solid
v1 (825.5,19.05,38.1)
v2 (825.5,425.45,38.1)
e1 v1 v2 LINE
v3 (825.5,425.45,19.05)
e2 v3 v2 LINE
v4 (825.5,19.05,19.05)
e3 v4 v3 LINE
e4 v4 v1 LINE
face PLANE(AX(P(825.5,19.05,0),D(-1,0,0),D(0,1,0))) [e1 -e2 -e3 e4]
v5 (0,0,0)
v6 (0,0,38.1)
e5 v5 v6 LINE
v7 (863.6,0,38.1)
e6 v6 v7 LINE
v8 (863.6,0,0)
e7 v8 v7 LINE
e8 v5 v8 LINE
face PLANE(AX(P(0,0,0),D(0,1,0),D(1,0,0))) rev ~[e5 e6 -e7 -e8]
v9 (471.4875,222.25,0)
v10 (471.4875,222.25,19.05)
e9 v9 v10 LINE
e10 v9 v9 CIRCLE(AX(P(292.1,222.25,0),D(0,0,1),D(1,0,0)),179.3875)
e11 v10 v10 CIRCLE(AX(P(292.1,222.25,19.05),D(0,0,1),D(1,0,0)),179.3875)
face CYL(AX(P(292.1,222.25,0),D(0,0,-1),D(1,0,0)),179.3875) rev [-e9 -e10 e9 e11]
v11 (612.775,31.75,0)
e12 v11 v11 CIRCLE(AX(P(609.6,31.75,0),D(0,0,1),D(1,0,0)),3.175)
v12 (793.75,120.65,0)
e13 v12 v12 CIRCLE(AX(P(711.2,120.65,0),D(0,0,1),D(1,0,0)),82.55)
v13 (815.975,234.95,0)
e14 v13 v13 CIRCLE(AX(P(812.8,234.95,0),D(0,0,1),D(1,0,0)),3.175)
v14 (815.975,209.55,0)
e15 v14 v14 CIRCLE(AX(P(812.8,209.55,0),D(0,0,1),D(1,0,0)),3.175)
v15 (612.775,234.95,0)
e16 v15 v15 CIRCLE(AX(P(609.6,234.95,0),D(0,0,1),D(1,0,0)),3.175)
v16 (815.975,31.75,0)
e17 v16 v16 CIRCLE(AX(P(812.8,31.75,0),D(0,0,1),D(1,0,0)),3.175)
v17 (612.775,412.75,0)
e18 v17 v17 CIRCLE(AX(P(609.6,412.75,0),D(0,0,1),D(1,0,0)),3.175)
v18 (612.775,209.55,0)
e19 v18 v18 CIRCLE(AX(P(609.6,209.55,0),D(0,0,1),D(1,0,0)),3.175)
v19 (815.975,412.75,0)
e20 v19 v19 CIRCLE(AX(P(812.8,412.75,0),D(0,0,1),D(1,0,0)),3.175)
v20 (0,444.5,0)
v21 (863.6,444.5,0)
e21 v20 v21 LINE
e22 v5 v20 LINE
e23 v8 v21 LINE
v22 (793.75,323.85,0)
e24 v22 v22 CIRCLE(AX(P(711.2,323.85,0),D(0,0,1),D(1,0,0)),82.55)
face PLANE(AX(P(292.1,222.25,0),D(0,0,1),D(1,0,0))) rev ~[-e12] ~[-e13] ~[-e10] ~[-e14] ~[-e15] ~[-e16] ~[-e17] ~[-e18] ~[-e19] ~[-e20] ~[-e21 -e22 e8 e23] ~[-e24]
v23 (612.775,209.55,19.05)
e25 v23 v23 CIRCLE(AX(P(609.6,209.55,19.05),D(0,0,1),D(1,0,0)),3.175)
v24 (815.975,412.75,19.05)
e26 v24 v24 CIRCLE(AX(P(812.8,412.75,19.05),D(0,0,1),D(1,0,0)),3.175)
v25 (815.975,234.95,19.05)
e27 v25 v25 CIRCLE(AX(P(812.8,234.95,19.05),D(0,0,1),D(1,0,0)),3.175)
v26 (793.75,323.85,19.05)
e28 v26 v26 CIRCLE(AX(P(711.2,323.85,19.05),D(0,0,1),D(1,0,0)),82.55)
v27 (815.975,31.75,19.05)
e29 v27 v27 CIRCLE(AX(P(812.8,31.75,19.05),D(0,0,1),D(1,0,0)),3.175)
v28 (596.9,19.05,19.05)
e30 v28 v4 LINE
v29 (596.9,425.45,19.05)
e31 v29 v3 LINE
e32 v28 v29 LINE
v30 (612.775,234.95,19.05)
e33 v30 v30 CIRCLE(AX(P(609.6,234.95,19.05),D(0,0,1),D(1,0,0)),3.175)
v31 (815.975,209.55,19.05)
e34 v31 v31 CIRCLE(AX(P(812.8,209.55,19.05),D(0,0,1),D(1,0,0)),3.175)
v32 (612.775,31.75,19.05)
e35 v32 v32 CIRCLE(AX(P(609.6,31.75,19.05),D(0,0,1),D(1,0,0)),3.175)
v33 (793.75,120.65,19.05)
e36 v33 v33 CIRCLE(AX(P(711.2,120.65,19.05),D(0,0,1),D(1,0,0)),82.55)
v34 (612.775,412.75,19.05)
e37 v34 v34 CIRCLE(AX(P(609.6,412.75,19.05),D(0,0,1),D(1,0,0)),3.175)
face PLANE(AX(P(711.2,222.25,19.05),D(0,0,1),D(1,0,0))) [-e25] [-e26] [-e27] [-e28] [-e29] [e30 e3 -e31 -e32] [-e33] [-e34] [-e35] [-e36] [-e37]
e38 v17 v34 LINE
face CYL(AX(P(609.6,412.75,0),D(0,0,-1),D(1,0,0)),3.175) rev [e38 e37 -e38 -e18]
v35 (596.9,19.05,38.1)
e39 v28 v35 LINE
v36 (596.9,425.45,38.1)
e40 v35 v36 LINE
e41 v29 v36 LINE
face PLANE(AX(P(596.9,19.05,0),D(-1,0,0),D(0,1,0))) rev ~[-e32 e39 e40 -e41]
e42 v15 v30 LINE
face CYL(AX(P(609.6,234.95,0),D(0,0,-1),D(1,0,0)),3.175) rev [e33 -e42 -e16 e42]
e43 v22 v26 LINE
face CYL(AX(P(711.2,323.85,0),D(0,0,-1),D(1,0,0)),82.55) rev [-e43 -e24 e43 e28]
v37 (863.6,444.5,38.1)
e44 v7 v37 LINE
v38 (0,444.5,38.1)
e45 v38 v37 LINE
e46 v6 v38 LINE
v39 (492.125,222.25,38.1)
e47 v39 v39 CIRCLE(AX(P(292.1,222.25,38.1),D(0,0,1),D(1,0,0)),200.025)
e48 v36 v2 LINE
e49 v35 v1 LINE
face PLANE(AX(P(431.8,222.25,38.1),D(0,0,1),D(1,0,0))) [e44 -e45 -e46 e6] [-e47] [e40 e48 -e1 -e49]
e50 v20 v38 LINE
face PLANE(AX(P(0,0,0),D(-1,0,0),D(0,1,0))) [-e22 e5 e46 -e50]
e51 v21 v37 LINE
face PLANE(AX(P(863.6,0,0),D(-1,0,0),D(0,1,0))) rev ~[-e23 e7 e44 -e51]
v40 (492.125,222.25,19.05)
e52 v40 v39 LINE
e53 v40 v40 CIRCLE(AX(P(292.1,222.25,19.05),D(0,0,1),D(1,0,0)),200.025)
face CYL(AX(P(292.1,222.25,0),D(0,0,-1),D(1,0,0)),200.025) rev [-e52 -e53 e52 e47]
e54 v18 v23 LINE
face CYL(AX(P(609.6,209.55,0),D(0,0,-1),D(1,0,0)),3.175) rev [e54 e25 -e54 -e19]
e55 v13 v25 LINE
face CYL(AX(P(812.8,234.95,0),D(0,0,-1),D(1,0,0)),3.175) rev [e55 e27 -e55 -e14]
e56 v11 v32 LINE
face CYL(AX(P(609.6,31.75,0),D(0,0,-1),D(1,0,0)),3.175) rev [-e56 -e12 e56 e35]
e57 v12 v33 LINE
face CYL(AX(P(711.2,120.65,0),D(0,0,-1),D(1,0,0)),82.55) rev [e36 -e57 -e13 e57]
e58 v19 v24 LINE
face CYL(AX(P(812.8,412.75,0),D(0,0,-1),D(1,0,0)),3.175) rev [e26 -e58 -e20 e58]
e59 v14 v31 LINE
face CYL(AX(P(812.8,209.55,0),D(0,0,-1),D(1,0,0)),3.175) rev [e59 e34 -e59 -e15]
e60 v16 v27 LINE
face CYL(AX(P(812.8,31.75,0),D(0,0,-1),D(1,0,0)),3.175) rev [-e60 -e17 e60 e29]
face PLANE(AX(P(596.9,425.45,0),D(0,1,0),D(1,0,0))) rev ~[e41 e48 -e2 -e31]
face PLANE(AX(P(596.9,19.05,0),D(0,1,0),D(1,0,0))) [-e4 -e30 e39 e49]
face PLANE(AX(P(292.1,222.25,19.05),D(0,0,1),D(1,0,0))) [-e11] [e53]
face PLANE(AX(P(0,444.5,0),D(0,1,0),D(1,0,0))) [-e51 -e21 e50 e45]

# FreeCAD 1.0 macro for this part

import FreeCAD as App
import Part
import Sketcher

V = App.Vector
Q = App.Units.Quantity

doc = App.newDocument("Part")
body = doc.addObject("PartDesign::Body", "Body")

# Sketch on XY plane
sketch1 = body.newObject("Sketcher::SketchObject", "Sketch")
sketch1.AttachmentSupport = (doc.getObject("XY_Plane"), [""])
sketch1.MapMode = "FlatFace"
sketch1.addGeometry([
    Part.LineSegment(V(0, 444, 0), V(0, 0, 0)),  # 0
    Part.LineSegment(V(0, 0, 0), V(864, 0, 0)),  # 1
    Part.LineSegment(V(864, 0, 0), V(864, 444, 0)),  # 2
    Part.LineSegment(V(864, 444, 0), V(0, 444, 0)),  # 3
    Part.Circle(V(292, 222, 0), V(0, 0, 1), 200),  # 4
    Part.LineSegment(V(826, 19, 0), V(597, 19, 0)),  # 5
    Part.LineSegment(V(597, 19, 0), V(597, 425, 0)),  # 6
    Part.LineSegment(V(597, 425, 0), V(826, 425, 0)),  # 7
    Part.LineSegment(V(826, 425, 0), V(826, 19, 0)),  # 8
], False)
sketch1.addConstraint([
    Sketcher.Constraint("Coincident", 0, 2, 1, 1),
    Sketcher.Constraint("Coincident", 1, 2, 2, 1),
    Sketcher.Constraint("Coincident", 2, 2, 3, 1),
    Sketcher.Constraint("Coincident", 3, 2, 0, 1),
    Sketcher.Constraint("Coincident", 5, 2, 6, 1),
    Sketcher.Constraint("Coincident", 6, 2, 7, 1),
    Sketcher.Constraint("Coincident", 7, 2, 8, 1),
    Sketcher.Constraint("Coincident", 8, 2, 5, 1),
    Sketcher.Constraint("Vertical", 0),
    Sketcher.Constraint("Horizontal", 1),
    Sketcher.Constraint("Vertical", 2),
    Sketcher.Constraint("Horizontal", 3),
    Sketcher.Constraint("Horizontal", 5),
    Sketcher.Constraint("Vertical", 6),
    Sketcher.Constraint("Horizontal", 7),
    Sketcher.Constraint("Vertical", 8),
    Sketcher.Constraint("Coincident", 0, 2, -1, 1),
    Sketcher.Constraint("Diameter", 4, Q("15.75 in")),
    Sketcher.Constraint("DistanceX", 1, 1, 1, 2, Q("34 in")),
    Sketcher.Constraint("DistanceX", 5, 2, 5, 1, Q("9 in")),
    Sketcher.Constraint("DistanceY", 6, 1, 6, 2, Q("16 in")),
    Sketcher.Constraint("DistanceY", 0, 2, 0, 1, Q("17.5 in")),
    Sketcher.Constraint("DistanceX", 4, 3, 5, 2, Q("12 in")),
    Sketcher.Constraint("DistanceY", 5, 2, 4, 3, Q("8 in")),
    Sketcher.Constraint("DistanceX", -1, 1, 4, 3, Q("11.5 in")),
    Sketcher.Constraint("DistanceY", -1, 1, 4, 3, Q("8.75 in")),
])
pad1 = body.newObject("PartDesign::Pad", "Pad")
pad1.Profile = sketch1
pad1.Length = Q("1.5 in")

# Sketch on XY plane
sketch2 = body.newObject("Sketcher::SketchObject", "Sketch001")
sketch2.AttachmentSupport = (doc.getObject("XY_Plane"), [""])
sketch2.MapMode = "FlatFace"
sketch2.addGeometry([
    Part.Circle(V(292.1, 222.2, 0), V(0, 0, 1), 200),  # 0
    Part.Circle(V(292.1, 222.2, 0), V(0, 0, 1), 179.4),  # 1
    Part.LineSegment(V(596.9, 425.4, 0), V(596.9, 19.1, 0)),  # 2
    Part.LineSegment(V(596.9, 19.1, 0), V(825.5, 19.1, 0)),  # 3
    Part.LineSegment(V(825.5, 19.1, 0), V(825.5, 425.4, 0)),  # 4
    Part.LineSegment(V(825.5, 425.4, 0), V(596.9, 425.4, 0)),  # 5
    Part.Circle(V(609.6, 31.8, 0), V(0, 0, 1), 3.2),  # 6
    Part.Circle(V(609.6, 209.6, 0), V(0, 0, 1), 3.2),  # 7
    Part.Circle(V(711.2, 120.7, 0), V(0, 0, 1), 82.5),  # 8
    Part.Circle(V(812.8, 31.8, 0), V(0, 0, 1), 3.2),  # 9
    Part.Circle(V(812.8, 209.6, 0), V(0, 0, 1), 3.2),  # 10
    Part.Circle(V(609.6, 234.9, 0), V(0, 0, 1), 3.2),  # 11
    Part.Circle(V(609.6, 412.8, 0), V(0, 0, 1), 3.2),  # 12
    Part.Circle(V(812.8, 234.9, 0), V(0, 0, 1), 3.2),  # 13
    Part.Circle(V(711.2, 323.9, 0), V(0, 0, 1), 82.5),  # 14
    Part.Circle(V(812.8, 412.8, 0), V(0, 0, 1), 3.2),  # 15
], False)
sketch2.addConstraint([
    Sketcher.Constraint("Coincident", 2, 2, 3, 1),
    Sketcher.Constraint("Coincident", 3, 2, 4, 1),
    Sketcher.Constraint("Coincident", 4, 2, 5, 1),
    Sketcher.Constraint("Coincident", 5, 2, 2, 1),
    Sketcher.Constraint("Vertical", 2),
    Sketcher.Constraint("Horizontal", 3),
    Sketcher.Constraint("Vertical", 4),
    Sketcher.Constraint("Horizontal", 5),
    Sketcher.Constraint("Coincident", 1, 3, 0, 3),
    Sketcher.Constraint("Equal", 6, 7),
    Sketcher.Constraint("Equal", 7, 9),
    Sketcher.Constraint("Equal", 9, 10),
    Sketcher.Constraint("Equal", 10, 11),
    Sketcher.Constraint("Equal", 11, 12),
    Sketcher.Constraint("Equal", 12, 13),
    Sketcher.Constraint("Equal", 8, 14),
    Sketcher.Constraint("Equal", 13, 15),
    Sketcher.Constraint("Horizontal", 6, 3, 9, 3),
    Sketcher.Constraint("Horizontal", 7, 3, 10, 3),
    Sketcher.Constraint("Horizontal", 11, 3, 13, 3),
    Sketcher.Constraint("Horizontal", 12, 3, 15, 3),
    Sketcher.Constraint("Vertical", 6, 3, 7, 3),
    Sketcher.Constraint("Vertical", 9, 3, 10, 3),
    Sketcher.Constraint("Vertical", 7, 3, 11, 3),
    Sketcher.Constraint("Vertical", 11, 3, 12, 3),
    Sketcher.Constraint("Vertical", 10, 3, 13, 3),
    Sketcher.Constraint("Vertical", 8, 3, 14, 3),
    Sketcher.Constraint("Vertical", 13, 3, 15, 3),
    Sketcher.Constraint("Diameter", 8, Q("6.5 in")),
    Sketcher.Constraint("Diameter", 0, Q("15.75 in")),
    Sketcher.Constraint("Diameter", 6, Q("0.25 in")),
    Sketcher.Constraint("DistanceX", 3, 1, 3, 2, Q("9 in")),
    Sketcher.Constraint("DistanceY", 2, 2, 2, 1, Q("16 in")),
    Sketcher.Constraint("Diameter", 1, Q("14.125 in")),
    Sketcher.Constraint("DistanceX", -1, 1, 6, 3, Q("24 in")),
    Sketcher.Constraint("DistanceX", -1, 1, 8, 3, Q("28 in")),
    Sketcher.Constraint("DistanceX", -1, 1, 9, 3, Q("32 in")),
    Sketcher.Constraint("DistanceY", 6, 3, 7, 3, Q("7 in")),
    Sketcher.Constraint("DistanceY", 8, 3, 0, 3, Q("4 in")),
    Sketcher.Constraint("DistanceY", 7, 3, 11, 3, Q("1 in")),
    Sketcher.Constraint("DistanceY", 11, 3, 12, 3, Q("7 in")),
    Sketcher.Constraint("DistanceY", 2, 2, 8, 3, Q("4 in")),
    Sketcher.Constraint("DistanceY", 14, 3, 4, 2, Q("4 in")),
    Sketcher.Constraint("DistanceX", -1, 1, 0, 3, Q("11.5 in")),
    Sketcher.Constraint("DistanceX", -1, 1, 2, 2, Q("23.5 in")),
    Sketcher.Constraint("DistanceY", 6, 3, 0, 3, Q("7.5 in")),
    Sketcher.Constraint("DistanceY", -1, 1, 0, 3, Q("8.75 in")),
])
pad2 = body.newObject("PartDesign::Pad", "Pad001")
pad2.Profile = sketch2
pad2.Length = Q("0.75 in")

doc.recompute()
